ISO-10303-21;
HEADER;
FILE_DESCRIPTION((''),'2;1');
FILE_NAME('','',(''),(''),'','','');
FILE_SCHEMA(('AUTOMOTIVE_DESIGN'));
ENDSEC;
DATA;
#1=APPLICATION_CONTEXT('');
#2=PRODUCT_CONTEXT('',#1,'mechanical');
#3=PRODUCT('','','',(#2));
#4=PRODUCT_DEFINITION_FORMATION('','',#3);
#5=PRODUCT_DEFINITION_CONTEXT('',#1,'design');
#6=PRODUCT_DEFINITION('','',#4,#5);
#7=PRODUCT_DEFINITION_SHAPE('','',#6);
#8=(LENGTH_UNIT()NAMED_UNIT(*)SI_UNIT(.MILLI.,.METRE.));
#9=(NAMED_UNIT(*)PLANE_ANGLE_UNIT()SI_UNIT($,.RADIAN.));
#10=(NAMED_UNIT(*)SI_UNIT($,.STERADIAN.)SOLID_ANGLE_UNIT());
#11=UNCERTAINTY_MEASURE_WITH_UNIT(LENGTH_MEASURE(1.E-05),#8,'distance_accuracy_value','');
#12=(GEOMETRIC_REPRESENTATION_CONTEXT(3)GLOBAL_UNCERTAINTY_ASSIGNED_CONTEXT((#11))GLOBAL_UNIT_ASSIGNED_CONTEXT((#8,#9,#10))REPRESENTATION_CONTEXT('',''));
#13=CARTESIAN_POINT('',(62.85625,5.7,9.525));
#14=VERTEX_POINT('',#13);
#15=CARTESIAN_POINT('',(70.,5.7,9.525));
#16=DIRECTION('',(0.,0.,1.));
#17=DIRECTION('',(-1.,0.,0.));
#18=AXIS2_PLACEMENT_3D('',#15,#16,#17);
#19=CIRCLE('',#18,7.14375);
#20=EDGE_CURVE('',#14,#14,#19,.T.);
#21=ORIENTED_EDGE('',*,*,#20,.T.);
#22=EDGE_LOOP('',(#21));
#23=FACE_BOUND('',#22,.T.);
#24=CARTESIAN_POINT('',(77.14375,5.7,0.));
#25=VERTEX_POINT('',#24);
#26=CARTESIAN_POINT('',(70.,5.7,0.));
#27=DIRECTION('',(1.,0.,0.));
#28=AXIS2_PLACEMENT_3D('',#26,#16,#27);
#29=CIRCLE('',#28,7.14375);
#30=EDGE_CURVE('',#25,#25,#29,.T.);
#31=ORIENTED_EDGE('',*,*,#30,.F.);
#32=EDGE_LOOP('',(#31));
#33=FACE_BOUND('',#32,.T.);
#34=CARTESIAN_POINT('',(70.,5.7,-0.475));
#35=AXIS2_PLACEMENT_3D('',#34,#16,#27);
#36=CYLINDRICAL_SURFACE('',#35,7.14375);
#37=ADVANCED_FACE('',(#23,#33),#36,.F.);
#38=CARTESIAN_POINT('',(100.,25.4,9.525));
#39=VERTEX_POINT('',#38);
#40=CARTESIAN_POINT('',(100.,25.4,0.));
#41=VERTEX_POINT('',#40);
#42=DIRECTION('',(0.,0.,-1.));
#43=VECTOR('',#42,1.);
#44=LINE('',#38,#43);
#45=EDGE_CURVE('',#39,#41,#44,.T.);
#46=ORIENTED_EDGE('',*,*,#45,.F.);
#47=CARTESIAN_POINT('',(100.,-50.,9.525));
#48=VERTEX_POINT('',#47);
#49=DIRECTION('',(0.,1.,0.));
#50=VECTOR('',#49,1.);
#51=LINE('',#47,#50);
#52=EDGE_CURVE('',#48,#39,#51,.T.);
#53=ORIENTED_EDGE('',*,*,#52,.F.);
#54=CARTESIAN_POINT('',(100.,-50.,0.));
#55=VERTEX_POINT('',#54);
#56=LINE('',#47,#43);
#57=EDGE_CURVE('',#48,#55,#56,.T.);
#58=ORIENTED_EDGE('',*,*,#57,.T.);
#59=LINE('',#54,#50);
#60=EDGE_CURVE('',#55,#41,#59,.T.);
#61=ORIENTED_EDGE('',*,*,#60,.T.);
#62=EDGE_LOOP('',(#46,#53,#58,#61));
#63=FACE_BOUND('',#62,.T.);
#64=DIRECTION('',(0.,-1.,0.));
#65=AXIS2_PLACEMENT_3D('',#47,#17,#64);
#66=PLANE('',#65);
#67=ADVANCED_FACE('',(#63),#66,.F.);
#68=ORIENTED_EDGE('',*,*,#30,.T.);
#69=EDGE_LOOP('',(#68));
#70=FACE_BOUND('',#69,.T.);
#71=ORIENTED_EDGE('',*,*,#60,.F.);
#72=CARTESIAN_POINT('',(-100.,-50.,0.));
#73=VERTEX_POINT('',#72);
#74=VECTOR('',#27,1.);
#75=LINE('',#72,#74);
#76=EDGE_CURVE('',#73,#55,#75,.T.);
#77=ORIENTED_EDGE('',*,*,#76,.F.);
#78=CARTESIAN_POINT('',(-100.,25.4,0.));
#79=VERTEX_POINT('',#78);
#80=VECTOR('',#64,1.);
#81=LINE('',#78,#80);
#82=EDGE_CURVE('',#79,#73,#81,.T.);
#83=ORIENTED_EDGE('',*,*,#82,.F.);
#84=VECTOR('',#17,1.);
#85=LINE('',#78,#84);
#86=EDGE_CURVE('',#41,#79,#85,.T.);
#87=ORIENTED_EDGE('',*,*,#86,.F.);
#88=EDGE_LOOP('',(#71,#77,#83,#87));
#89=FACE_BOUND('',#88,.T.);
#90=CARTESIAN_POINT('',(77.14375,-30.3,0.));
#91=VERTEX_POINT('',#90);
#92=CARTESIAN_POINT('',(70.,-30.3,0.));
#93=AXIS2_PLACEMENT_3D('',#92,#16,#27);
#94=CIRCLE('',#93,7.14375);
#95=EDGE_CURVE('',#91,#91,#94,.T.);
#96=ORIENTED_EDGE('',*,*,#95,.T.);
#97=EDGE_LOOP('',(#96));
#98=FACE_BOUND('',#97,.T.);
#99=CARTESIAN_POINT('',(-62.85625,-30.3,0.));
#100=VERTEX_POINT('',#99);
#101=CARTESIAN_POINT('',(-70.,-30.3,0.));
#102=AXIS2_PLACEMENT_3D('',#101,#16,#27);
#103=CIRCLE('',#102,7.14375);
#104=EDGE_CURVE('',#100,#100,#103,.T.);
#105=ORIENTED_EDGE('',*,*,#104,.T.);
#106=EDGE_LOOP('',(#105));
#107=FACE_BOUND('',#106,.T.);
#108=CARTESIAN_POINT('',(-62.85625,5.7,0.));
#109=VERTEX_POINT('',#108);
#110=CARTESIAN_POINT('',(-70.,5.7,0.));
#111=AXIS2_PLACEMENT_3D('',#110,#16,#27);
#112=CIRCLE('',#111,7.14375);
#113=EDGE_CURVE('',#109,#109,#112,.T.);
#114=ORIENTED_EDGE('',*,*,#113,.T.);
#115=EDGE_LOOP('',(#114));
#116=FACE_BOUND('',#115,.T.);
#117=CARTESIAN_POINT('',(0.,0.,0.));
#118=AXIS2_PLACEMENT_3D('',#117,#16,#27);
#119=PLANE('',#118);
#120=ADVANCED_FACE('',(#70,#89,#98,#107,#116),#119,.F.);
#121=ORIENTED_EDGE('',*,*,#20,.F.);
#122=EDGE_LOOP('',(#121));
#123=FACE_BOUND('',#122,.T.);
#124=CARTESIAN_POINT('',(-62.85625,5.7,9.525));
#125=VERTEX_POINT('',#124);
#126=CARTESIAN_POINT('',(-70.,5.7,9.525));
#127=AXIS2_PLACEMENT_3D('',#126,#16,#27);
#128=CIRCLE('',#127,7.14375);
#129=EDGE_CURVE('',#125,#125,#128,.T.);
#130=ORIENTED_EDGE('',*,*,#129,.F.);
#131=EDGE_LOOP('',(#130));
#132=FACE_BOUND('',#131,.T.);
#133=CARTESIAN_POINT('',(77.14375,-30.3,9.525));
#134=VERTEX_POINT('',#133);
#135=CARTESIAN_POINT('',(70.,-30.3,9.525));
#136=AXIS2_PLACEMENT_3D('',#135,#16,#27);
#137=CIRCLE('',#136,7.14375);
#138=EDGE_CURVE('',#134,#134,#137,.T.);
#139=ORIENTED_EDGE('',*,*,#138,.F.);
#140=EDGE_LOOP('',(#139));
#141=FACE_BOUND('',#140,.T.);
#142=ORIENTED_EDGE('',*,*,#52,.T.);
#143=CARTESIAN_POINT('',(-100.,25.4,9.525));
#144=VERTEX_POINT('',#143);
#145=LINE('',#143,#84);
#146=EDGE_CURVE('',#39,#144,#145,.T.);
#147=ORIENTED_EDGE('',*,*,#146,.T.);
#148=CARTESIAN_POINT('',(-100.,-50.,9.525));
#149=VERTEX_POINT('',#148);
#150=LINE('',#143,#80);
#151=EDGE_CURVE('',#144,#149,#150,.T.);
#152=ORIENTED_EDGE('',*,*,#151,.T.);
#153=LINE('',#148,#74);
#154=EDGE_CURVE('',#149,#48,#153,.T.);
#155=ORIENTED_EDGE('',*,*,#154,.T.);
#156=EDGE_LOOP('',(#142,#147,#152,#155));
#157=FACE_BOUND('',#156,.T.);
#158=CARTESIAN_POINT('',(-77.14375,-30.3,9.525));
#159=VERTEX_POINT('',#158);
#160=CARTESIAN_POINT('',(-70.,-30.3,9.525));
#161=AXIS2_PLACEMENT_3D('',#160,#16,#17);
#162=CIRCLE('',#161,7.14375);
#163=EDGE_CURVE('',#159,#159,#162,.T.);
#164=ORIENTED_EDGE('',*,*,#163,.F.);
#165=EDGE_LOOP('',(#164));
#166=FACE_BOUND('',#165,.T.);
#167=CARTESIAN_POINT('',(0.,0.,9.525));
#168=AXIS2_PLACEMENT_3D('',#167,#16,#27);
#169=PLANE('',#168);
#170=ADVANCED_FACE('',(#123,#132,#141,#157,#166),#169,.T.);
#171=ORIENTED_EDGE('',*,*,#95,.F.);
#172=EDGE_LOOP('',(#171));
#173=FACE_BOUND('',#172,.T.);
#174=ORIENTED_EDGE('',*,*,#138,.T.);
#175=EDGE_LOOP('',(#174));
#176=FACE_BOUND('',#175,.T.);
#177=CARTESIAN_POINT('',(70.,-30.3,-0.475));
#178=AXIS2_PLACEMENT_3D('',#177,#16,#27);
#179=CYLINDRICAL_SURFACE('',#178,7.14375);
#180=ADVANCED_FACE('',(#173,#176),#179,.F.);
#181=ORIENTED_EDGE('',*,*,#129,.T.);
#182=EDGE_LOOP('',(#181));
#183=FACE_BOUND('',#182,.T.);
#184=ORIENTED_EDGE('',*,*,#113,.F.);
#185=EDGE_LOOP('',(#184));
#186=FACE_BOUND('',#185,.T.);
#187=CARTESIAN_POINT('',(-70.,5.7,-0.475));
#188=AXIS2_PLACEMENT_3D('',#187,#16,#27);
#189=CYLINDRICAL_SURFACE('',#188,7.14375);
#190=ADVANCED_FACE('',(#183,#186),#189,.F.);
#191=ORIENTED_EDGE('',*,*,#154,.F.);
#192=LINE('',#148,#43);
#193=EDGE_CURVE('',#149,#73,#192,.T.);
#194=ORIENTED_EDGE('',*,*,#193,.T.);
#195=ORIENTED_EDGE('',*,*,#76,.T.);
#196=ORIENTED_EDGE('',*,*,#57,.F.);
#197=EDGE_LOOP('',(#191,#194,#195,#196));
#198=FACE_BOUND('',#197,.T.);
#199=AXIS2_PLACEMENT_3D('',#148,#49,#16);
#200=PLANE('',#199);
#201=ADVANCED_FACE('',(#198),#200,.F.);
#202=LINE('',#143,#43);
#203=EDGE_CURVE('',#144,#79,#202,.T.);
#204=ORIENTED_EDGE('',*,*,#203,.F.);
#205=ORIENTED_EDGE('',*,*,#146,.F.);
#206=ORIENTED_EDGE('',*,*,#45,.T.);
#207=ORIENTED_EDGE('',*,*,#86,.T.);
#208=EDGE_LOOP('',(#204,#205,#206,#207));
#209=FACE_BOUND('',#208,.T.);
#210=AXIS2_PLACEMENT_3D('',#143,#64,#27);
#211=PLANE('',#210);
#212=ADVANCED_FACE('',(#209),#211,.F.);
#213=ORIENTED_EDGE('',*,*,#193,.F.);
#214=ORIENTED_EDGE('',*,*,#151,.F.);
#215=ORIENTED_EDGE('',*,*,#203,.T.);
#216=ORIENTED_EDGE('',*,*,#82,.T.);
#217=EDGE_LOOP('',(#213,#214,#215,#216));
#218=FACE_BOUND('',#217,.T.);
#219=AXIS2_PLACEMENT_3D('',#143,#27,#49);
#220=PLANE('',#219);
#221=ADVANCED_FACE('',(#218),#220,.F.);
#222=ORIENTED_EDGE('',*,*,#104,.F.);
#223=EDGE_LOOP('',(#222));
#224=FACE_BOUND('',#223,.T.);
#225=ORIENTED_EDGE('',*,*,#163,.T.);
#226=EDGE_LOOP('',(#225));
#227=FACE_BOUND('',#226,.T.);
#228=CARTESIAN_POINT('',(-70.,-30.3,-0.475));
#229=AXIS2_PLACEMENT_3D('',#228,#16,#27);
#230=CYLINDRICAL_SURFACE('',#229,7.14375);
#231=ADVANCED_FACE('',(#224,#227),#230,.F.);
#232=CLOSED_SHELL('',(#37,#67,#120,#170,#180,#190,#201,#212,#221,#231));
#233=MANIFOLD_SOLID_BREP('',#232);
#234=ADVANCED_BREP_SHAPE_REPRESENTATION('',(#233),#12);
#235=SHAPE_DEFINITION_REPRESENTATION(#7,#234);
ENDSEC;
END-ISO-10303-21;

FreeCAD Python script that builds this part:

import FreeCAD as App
import Part
import Sketcher
Q = App.Units.Quantity


def add_polygon(sketch, points):
    """Adds a closed chain of lines whose ends are joined by coincident constraints."""
    first, n = sketch.GeometryCount, len(points)
    for a, b in zip(points, points[1:] + points[:1]):
        sketch.addGeometry(Part.LineSegment(App.Vector(*a, 0), App.Vector(*b, 0)), False)
    for i in range(n):
        sketch.addConstraint(Sketcher.Constraint("Coincident", first + i, 2, first + (i + 1) % n, 1))

doc = App.newDocument("Part")
body = doc.addObject("PartDesign::Body", "Body")

sketch1 = body.newObject("Sketcher::SketchObject", "Sketch")
sketch1.AttachmentSupport = (doc.getObject("XY_Plane"), [""])
sketch1.MapMode = "FlatFace"
add_polygon(sketch1, [(-100, 25), (-100, -50), (100, -50), (100, 25)])
sketch1.addConstraint(Sketcher.Constraint("Vertical", 0))
sketch1.addConstraint(Sketcher.Constraint("Horizontal", 1))
sketch1.addConstraint(Sketcher.Constraint("Vertical", 2))
sketch1.addConstraint(Sketcher.Constraint("Horizontal", 3))
sketch1.addConstraint(Sketcher.Constraint("DistanceX", 1, 1, 1, 2, Q("200 mm")))
sketch1.addConstraint(Sketcher.Constraint("DistanceY", 0, 2, 0, 1, Q("75.4 mm")))
sketch1.addConstraint(Sketcher.Constraint("DistanceX", 0, 2, -1, 1, Q("100 mm")))
sketch1.addConstraint(Sketcher.Constraint("DistanceY", 0, 2, -1, 1, Q("50 mm")))
pad1 = body.newObject("PartDesign::Pad", "Pad")
pad1.Profile = sketch1
pad1.Length = 9.525

sketch2 = body.newObject("Sketcher::SketchObject", "Sketch001")
sketch2.AttachmentSupport = (doc.getObject("XY_Plane"), [""])
sketch2.MapMode = "FlatFace"
sketch2.AttachmentOffset = App.Placement(App.Vector(0, 0, 9.525), App.Rotation())
sketch2.addGeometry(Part.Circle(App.Vector(-70, 6, 0), App.Vector(0, 0, 1), 7), False)
sketch2.addGeometry(Part.Circle(App.Vector(-70, -30, 0), App.Vector(0, 0, 1), 7), False)
sketch2.addGeometry(Part.Circle(App.Vector(70, -30, 0), App.Vector(0, 0, 1), 7), False)
sketch2.addGeometry(Part.Circle(App.Vector(70, 6, 0), App.Vector(0, 0, 1), 7), False)
sketch2.addConstraint(Sketcher.Constraint("Equal", 0, 1))
sketch2.addConstraint(Sketcher.Constraint("Equal", 1, 2))
sketch2.addConstraint(Sketcher.Constraint("Equal", 2, 3))
sketch2.addConstraint(Sketcher.Constraint("Symmetric", 1, 3, 2, 3, -2))
sketch2.addConstraint(Sketcher.Constraint("Symmetric", 0, 3, 3, 3, -2))
sketch2.addConstraint(Sketcher.Constraint("Vertical", 0, 3, 1, 3))
sketch2.addConstraint(Sketcher.Constraint("DistanceX", 0, 3, -1, 1, Q("70 mm")))
sketch2.addConstraint(Sketcher.Constraint("DistanceY", 1, 3, 0, 3, Q("36 mm")))
sketch2.addConstraint(Sketcher.Constraint("Diameter", 0, Q("14.2875 mm")))
sketch2.addConstraint(Sketcher.Constraint("DistanceY", -1, 1, 0, 3, Q("5.7 mm")))
pocket1 = body.newObject("PartDesign::Pocket", "Pocket")
pocket1.Profile = sketch2
pocket1.Length = 10

doc.recompute()
